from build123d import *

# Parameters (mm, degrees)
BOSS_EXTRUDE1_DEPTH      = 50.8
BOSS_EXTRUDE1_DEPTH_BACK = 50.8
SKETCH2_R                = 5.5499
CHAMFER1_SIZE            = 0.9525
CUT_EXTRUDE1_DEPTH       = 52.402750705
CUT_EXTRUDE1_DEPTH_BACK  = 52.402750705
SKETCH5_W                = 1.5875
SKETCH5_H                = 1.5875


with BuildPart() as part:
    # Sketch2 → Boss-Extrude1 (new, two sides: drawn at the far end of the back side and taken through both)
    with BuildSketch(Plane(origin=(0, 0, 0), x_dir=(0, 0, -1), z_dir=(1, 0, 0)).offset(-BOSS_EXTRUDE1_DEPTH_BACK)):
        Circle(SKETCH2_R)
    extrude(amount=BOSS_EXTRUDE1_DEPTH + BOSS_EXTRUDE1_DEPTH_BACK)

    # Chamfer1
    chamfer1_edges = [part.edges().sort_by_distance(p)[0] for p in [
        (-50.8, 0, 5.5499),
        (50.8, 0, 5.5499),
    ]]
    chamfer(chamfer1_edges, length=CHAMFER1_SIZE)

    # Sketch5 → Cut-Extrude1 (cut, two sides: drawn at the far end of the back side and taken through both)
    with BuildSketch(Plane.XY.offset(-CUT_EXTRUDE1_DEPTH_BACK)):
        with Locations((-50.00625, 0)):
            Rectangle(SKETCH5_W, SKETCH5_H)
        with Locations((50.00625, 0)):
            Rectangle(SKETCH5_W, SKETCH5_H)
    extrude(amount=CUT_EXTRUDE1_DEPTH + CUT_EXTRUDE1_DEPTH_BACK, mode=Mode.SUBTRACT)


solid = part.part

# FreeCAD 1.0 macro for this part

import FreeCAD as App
import Part
import Sketcher
from FreeCAD import Vector
Q = App.Units.Quantity


def edges_at(feature, points):
    """Names of the edges that pass closest to the given points."""
    edges = feature.Shape.Edges
    near = lambda p: min(range(len(edges)), key=lambda i: edges[i].distToShape(Part.Vertex(*p))[0])
    return sorted({f"Edge{near(p) + 1}" for p in points})


def add_polygon(sketch, points):
    """Adds a closed chain of lines whose ends are joined by coincident constraints."""
    first, n = sketch.GeometryCount, len(points)
    for a, b in zip(points, points[1:] + points[:1]):
        sketch.addGeometry(Part.LineSegment(App.Vector(*a, 0), App.Vector(*b, 0)), False)
    for i in range(n):
        sketch.addConstraint(Sketcher.Constraint("Coincident", first + i, 2, first + (i + 1) % n, 1))

doc = App.newDocument("Part")
params = doc.addObject("Spreadsheet::Sheet", "Params")
for row, (alias, value) in enumerate([
    ("sketch1_diameter", "0.437 in"),
    ("pad1_length", "2 in"),
    ("pad1_length2", "2 in"),
    ("chamfer_size", "0.0375 in"),
    ("sketch2_width", "0.0625 in"),
], start=1):
    params.set(f"A{row}", alias)
    params.set(f"B{row}", "=" + value)
    params.setAlias(f"B{row}", alias)

body = doc.addObject("PartDesign::Body", "Body")

# Sketch on YZ plane
sketch1 = body.newObject("Sketcher::SketchObject", "Sketch")
sketch1.AttachmentSupport = (doc.getObject("YZ_Plane"), [""])
sketch1.MapMode = "FlatFace"
sketch1.addGeometry(Part.Circle(Vector(0, 0, 0), Vector(0, 0, 1), 5.5499), False)
sketch1.addConstraint(Sketcher.Constraint("Coincident", 0, 3, -1, 1))
sketch1.addConstraint(Sketcher.Constraint("Diameter", 0, Q("0.437 in")))
sketch1.setExpression("Constraints[1]", "Params.sketch1_diameter")
pad1 = body.newObject("PartDesign::Pad", "Pad")
pad1.Profile = sketch1
pad1.Type = "TwoLengths"
pad1.setExpression("Length", "Params.pad1_length")
pad1.setExpression("Length2", "Params.pad1_length2")
doc.recompute()

chamfer = body.newObject("PartDesign::Chamfer", "Chamfer")
chamfer.Base = (pad1, edges_at(pad1, [(-50.8, 0, 5.55), (50.8, 0, 5.55)]))
chamfer.setExpression("Size", "Params.chamfer_size")

# Sketch on XY plane
sketch2 = body.newObject("Sketcher::SketchObject", "Sketch001")
sketch2.AttachmentSupport = (doc.getObject("XY_Plane"), [""])
sketch2.MapMode = "FlatFace"
add_polygon(sketch2, [(-50.8, 0.79375), (-50.8, -0.79375), (-49.2125, -0.79375), (-49.2125, 0.79375)])  # lines 0-3
add_polygon(sketch2, [(49.2125, 0.79375), (49.2125, -0.79375), (50.8, -0.79375), (50.8, 0.79375)])  # lines 4-7
sketch2.addConstraint(Sketcher.Constraint("Vertical", 0))
sketch2.addConstraint(Sketcher.Constraint("Horizontal", 1))
sketch2.addConstraint(Sketcher.Constraint("Vertical", 2))
sketch2.addConstraint(Sketcher.Constraint("Horizontal", 3))
sketch2.addConstraint(Sketcher.Constraint("Vertical", 4))
sketch2.addConstraint(Sketcher.Constraint("Horizontal", 5))
sketch2.addConstraint(Sketcher.Constraint("Vertical", 6))
sketch2.addConstraint(Sketcher.Constraint("Horizontal", 7))
sketch2.addConstraint(Sketcher.Constraint("Symmetric", 2, 2, 4, 2, -1, 1))
sketch2.addConstraint(Sketcher.Constraint("Symmetric", 0, 2, 6, 2, -1, 1))
sketch2.addConstraint(Sketcher.Constraint("Horizontal", 1, 2, 4, 2))
sketch2.addConstraint(Sketcher.Constraint("Equal", 7, 0))
sketch2.addConstraint(Sketcher.Constraint("DistanceX", 0, 2, -1, 1, Q("2 in")))
sketch2.addConstraint(Sketcher.Constraint("DistanceX", 1, 1, 1, 2, Q("0.0625 in")))
sketch2.setExpression("Constraints[21]", "Params.sketch2_width")
pocket1 = body.newObject("PartDesign::Pocket", "Pocket")
pocket1.Profile = sketch2
pocket1.Type = "ThroughAll"
pocket1.Midplane = True

doc.recompute()
